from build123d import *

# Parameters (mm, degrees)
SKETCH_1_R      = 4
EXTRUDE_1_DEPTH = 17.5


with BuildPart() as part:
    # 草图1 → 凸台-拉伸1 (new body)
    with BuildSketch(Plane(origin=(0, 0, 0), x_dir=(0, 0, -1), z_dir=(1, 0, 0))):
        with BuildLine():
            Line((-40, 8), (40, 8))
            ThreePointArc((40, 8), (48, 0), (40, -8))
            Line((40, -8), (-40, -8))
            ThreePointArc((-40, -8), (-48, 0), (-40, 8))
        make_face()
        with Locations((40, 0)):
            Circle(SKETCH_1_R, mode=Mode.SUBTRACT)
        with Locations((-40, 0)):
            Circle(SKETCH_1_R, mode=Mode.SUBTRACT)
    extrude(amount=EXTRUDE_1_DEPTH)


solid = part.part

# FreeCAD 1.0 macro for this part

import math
import FreeCAD as App
import Part
import Sketcher
Q = App.Units.Quantity

doc = App.newDocument("Part")
body = doc.addObject("PartDesign::Body", "Body")

# Sketch on YZ plane
sketch1 = body.newObject("Sketcher::SketchObject", "Sketch")
sketch1.AttachmentSupport = (doc.getObject("YZ_Plane"), [""])
sketch1.MapMode = "FlatFace"
sketch1.addGeometry([
    Part.LineSegment(App.Vector(8, -40, 0), App.Vector(8, 40, 0)),  # 0
    Part.ArcOfCircle(Part.Circle(App.Vector(0, 40, 0), App.Vector(0, 0, 1), 8), math.radians(0), math.radians(180)),  # 1
    Part.LineSegment(App.Vector(-8, 40, 0), App.Vector(-8, -40, 0)),  # 2
    Part.ArcOfCircle(Part.Circle(App.Vector(0, -40, 0), App.Vector(0, 0, 1), 8), math.radians(180), math.radians(360)),  # 3
    Part.Circle(App.Vector(0, -40, 0), App.Vector(0, 0, 1), 4),  # 4
    Part.Circle(App.Vector(0, 40, 0), App.Vector(0, 0, 1), 4),  # 5
], False)
sketch1.addConstraint([
    Sketcher.Constraint("Tangent", 0, 2, 1, 1),
    Sketcher.Constraint("Tangent", 1, 2, 2, 1),
    Sketcher.Constraint("Tangent", 2, 2, 3, 1),
    Sketcher.Constraint("Tangent", 3, 2, 0, 1),
    Sketcher.Constraint("Vertical", 0),
    Sketcher.Constraint("Vertical", 2),
    Sketcher.Constraint("Coincident", 4, 3, 3, 3),
    Sketcher.Constraint("Coincident", 5, 3, 1, 3),
    Sketcher.Constraint("Equal", 4, 5),
    Sketcher.Constraint("Symmetric", 1, 3, 3, 3, -1, 1),
    Sketcher.Constraint("Diameter", 4, Q("8 mm")),
    Sketcher.Constraint("Radius", 1, Q("8 mm")),
    Sketcher.Constraint("DistanceY", 0, 1, 0, 2, Q("80 mm")),
])
pad1 = body.newObject("PartDesign::Pad", "Pad")
pad1.Profile = sketch1
pad1.Length = 17.5

doc.recompute()
